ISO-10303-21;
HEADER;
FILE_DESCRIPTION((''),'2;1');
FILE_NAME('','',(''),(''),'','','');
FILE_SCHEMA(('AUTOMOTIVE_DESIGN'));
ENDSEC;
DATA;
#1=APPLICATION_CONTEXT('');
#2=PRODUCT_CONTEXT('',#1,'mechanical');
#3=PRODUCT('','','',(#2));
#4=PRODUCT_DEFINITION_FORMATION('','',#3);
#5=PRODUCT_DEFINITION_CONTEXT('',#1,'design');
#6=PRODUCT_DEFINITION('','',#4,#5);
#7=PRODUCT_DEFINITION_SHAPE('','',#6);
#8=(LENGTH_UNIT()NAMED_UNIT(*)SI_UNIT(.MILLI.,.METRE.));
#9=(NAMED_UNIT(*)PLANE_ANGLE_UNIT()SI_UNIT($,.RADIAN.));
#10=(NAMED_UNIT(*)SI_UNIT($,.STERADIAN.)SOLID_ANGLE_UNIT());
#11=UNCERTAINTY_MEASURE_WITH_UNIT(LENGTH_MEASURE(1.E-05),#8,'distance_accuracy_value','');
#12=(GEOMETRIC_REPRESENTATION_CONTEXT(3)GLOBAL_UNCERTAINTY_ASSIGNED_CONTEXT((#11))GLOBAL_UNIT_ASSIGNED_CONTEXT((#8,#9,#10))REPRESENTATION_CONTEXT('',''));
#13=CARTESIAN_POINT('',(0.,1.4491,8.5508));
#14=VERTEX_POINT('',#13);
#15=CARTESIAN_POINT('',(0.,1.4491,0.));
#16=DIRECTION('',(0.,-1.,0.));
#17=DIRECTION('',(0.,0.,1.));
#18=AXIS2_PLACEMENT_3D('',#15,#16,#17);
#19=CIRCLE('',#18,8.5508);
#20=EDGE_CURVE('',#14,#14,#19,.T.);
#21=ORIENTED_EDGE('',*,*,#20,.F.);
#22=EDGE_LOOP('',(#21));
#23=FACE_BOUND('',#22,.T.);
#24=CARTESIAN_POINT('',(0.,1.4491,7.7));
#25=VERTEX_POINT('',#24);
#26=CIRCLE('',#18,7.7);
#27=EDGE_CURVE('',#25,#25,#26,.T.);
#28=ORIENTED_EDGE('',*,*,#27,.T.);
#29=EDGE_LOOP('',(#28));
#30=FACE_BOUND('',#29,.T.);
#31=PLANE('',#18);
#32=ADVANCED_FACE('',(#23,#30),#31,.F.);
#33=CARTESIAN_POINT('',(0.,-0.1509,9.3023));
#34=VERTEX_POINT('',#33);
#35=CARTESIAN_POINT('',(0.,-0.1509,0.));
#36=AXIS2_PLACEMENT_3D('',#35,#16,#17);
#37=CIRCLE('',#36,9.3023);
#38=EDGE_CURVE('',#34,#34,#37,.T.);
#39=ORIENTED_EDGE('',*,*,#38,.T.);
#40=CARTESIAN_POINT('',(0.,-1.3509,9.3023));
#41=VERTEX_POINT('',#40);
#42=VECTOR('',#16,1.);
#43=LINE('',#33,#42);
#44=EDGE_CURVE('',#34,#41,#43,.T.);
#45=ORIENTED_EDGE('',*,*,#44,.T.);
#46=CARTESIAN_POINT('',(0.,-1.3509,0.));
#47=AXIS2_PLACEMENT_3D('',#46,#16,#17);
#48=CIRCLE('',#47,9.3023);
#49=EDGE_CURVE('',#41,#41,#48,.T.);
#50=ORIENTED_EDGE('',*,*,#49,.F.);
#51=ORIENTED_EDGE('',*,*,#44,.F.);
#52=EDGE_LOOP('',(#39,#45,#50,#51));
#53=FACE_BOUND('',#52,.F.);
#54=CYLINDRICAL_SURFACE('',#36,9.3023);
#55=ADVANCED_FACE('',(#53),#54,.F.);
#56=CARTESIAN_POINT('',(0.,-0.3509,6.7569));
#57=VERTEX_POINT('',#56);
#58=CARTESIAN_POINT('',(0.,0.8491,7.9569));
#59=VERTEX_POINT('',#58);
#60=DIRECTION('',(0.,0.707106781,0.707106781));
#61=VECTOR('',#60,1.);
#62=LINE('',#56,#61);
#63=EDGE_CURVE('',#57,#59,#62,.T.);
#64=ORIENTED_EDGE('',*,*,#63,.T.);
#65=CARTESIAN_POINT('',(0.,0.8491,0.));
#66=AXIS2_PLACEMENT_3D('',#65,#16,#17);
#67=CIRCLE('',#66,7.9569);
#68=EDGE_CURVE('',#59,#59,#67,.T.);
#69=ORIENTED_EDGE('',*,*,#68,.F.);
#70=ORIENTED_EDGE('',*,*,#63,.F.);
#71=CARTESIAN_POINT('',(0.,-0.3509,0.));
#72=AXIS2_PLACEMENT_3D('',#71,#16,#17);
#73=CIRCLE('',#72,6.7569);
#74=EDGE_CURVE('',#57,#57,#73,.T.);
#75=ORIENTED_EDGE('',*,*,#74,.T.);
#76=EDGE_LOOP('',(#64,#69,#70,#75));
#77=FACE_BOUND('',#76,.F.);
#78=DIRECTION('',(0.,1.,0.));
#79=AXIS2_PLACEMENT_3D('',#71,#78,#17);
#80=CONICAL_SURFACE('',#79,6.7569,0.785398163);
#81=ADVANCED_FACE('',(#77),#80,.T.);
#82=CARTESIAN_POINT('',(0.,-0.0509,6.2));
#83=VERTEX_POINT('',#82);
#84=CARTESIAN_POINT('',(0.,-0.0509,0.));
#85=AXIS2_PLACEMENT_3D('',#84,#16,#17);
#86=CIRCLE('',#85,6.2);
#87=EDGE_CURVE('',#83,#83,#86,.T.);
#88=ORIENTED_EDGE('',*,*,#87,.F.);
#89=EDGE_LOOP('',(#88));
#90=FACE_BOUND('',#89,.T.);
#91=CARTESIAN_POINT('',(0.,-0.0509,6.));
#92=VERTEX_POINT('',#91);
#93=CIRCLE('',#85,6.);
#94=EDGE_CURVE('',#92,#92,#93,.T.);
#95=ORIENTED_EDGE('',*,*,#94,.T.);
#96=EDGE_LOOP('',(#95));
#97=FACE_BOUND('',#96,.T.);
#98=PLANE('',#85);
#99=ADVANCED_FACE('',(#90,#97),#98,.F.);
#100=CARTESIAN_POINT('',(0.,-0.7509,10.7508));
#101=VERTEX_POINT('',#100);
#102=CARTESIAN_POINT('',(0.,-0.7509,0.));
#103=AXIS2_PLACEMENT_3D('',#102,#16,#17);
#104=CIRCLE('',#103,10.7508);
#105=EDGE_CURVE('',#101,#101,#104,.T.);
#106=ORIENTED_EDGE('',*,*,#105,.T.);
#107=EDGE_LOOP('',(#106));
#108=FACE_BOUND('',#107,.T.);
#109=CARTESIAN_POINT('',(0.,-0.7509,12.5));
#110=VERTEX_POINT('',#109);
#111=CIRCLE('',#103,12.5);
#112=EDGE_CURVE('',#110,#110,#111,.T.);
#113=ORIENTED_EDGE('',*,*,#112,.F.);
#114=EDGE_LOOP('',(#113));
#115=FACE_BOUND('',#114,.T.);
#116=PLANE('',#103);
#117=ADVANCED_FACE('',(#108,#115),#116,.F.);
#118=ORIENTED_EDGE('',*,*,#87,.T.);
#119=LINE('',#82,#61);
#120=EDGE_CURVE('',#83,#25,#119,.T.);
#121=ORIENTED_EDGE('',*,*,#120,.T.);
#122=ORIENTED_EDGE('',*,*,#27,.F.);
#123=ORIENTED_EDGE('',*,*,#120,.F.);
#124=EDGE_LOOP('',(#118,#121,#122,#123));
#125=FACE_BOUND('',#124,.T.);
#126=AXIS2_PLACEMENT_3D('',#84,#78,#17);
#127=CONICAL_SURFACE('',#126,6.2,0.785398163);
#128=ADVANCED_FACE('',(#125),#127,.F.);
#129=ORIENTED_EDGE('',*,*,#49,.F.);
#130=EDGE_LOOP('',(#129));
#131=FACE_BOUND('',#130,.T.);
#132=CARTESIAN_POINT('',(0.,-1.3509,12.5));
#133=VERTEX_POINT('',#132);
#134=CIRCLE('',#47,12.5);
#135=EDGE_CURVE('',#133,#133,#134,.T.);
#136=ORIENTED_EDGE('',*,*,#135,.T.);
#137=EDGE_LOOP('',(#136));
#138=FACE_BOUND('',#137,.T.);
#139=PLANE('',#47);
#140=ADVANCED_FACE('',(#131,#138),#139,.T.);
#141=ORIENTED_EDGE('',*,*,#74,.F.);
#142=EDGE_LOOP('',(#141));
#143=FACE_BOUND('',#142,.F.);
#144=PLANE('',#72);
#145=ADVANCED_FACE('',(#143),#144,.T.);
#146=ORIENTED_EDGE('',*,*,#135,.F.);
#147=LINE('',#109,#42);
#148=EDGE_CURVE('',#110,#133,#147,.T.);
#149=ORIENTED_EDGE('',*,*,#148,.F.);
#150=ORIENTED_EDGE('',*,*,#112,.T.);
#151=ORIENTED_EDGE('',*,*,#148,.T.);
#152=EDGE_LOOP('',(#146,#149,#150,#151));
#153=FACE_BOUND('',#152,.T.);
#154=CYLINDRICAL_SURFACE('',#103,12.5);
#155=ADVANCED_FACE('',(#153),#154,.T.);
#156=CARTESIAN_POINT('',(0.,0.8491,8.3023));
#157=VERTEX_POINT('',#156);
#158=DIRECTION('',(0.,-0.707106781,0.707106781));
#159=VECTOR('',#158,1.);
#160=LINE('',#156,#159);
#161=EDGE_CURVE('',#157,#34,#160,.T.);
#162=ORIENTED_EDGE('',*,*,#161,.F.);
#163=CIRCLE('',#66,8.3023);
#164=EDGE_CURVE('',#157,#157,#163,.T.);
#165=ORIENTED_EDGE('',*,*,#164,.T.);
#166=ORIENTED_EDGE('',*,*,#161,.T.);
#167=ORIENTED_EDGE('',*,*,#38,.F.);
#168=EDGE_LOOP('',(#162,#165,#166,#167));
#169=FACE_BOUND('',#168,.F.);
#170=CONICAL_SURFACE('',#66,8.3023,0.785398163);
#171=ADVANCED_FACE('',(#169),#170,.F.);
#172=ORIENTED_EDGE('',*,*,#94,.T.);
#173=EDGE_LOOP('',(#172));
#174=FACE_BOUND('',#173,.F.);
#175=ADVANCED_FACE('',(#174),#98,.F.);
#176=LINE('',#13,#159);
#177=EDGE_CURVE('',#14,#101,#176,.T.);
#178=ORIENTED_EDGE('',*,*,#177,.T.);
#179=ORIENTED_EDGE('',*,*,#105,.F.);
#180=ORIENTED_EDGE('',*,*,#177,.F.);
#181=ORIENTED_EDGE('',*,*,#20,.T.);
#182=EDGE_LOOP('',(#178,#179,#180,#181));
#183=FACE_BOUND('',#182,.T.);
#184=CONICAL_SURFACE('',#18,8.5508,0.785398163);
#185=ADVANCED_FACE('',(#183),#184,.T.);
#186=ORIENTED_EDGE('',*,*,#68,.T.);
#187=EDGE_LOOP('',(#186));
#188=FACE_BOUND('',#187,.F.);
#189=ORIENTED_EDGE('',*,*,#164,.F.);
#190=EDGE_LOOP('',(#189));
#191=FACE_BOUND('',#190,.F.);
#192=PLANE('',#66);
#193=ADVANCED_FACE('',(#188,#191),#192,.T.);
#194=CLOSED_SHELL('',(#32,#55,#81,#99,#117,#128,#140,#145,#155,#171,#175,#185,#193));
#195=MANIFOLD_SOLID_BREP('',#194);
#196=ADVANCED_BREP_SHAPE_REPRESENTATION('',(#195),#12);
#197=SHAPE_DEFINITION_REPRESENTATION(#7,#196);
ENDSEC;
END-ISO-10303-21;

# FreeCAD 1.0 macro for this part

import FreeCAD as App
import Part
import Sketcher
Q = App.Units.Quantity

doc = App.newDocument("Part")
body = doc.addObject("PartDesign::Body", "Body")

# Sketch on YZ plane
sketch1 = body.newObject("Sketcher::SketchObject", "Sketch")
sketch1.AttachmentSupport = (doc.getObject("YZ_Plane"), [""])
sketch1.MapMode = "FlatFace"
sketch1.addGeometry(Part.LineSegment(App.Vector(-0.05, 0, 0), App.Vector(-0.05, 6.2, 0)), False)
sketch1.addGeometry(Part.LineSegment(App.Vector(-0.05, 6.2, 0), App.Vector(1.45, 7.7, 0)), False)
sketch1.addGeometry(Part.LineSegment(App.Vector(1.45, 7.7, 0), App.Vector(1.45, 8.55, 0)), False)
sketch1.addGeometry(Part.LineSegment(App.Vector(1.45, 8.55, 0), App.Vector(-0.75, 10.75, 0)), False)
sketch1.addGeometry(Part.LineSegment(App.Vector(-0.75, 10.75, 0), App.Vector(-0.75, 12.5, 0)), False)
sketch1.addGeometry(Part.LineSegment(App.Vector(-0.75, 12.5, 0), App.Vector(-1.35, 12.5, 0)), False)
sketch1.addGeometry(Part.LineSegment(App.Vector(-1.35, 12.5, 0), App.Vector(-1.35, 9.3, 0)), False)
sketch1.addGeometry(Part.LineSegment(App.Vector(-1.35, 9.3, 0), App.Vector(-0.15, 9.3, 0)), False)
sketch1.addGeometry(Part.LineSegment(App.Vector(-0.15, 9.3, 0), App.Vector(0.85, 8.3, 0)), False)
sketch1.addGeometry(Part.LineSegment(App.Vector(0.85, 8.3, 0), App.Vector(0.85, 7.96, 0)), False)
sketch1.addGeometry(Part.LineSegment(App.Vector(0.85, 7.96, 0), App.Vector(-0.35, 6.76, 0)), False)
sketch1.addGeometry(Part.LineSegment(App.Vector(-0.35, 6.76, 0), App.Vector(-0.35, 0, 0)), False)
sketch1.addGeometry(Part.LineSegment(App.Vector(-0.35, 0, 0), App.Vector(-0.05, 0, 0)), False)
sketch1.addConstraint(Sketcher.Constraint("Coincident", 0, 2, 1, 1))
sketch1.addConstraint(Sketcher.Constraint("Coincident", 1, 2, 2, 1))
sketch1.addConstraint(Sketcher.Constraint("Coincident", 2, 2, 3, 1))
sketch1.addConstraint(Sketcher.Constraint("Coincident", 3, 2, 4, 1))
sketch1.addConstraint(Sketcher.Constraint("Coincident", 4, 2, 5, 1))
sketch1.addConstraint(Sketcher.Constraint("Coincident", 5, 2, 6, 1))
sketch1.addConstraint(Sketcher.Constraint("Coincident", 6, 2, 7, 1))
sketch1.addConstraint(Sketcher.Constraint("Coincident", 7, 2, 8, 1))
sketch1.addConstraint(Sketcher.Constraint("Coincident", 8, 2, 9, 1))
sketch1.addConstraint(Sketcher.Constraint("Coincident", 9, 2, 10, 1))
sketch1.addConstraint(Sketcher.Constraint("Coincident", 10, 2, 11, 1))
sketch1.addConstraint(Sketcher.Constraint("Coincident", 11, 2, 12, 1))
sketch1.addConstraint(Sketcher.Constraint("Coincident", 12, 2, 0, 1))
sketch1.addConstraint(Sketcher.Constraint("Vertical", 0))
sketch1.addConstraint(Sketcher.Constraint("Vertical", 2))
sketch1.addConstraint(Sketcher.Constraint("Vertical", 4))
sketch1.addConstraint(Sketcher.Constraint("Horizontal", 5))
sketch1.addConstraint(Sketcher.Constraint("Vertical", 6))
sketch1.addConstraint(Sketcher.Constraint("Horizontal", 7))
sketch1.addConstraint(Sketcher.Constraint("Vertical", 9))
sketch1.addConstraint(Sketcher.Constraint("Vertical", 11))
sketch1.addConstraint(Sketcher.Constraint("Horizontal", 12))
sketch1.addConstraint(Sketcher.Constraint("PointOnObject", 11, 2, -1))
sketch1.addConstraint(Sketcher.Constraint("Perpendicular", 1, 3))
sketch1.addConstraint(Sketcher.Constraint("Parallel", 3, 8))
sketch1.addConstraint(Sketcher.Constraint("Perpendicular", 8, 10))
sketch1.addConstraint(Sketcher.Constraint("Angle", 3, Q("135 deg")))
sketch1.addConstraint(Sketcher.Constraint("DistanceX", 5, 2, 5, 1, Q("0.6 mm")))
sketch1.addConstraint(Sketcher.Constraint("DistanceX", 7, 1, 7, 2, Q("1.2 mm")))
sketch1.addConstraint(Sketcher.Constraint("DistanceX", 12, 1, 12, 2, Q("0.3 mm")))
sketch1.addConstraint(Sketcher.Constraint("DistanceX", 7, 2, 8, 2, Q("1 mm")))
sketch1.addConstraint(Sketcher.Constraint("DistanceY", -1, 1, 4, 2, Q("12.5 mm")))
sketch1.addConstraint(Sketcher.Constraint("DistanceX", 8, 2, 2, 2, Q("0.6 mm")))
sketch1.addConstraint(Sketcher.Constraint("DistanceX", 10, 2, 9, 2, Q("1.2 mm")))
sketch1.addConstraint(Sketcher.Constraint("DistanceY", 0, 1, 0, 2, Q("6.2 mm")))
sketch1.addConstraint(Sketcher.Constraint("DistanceY", 11, 2, 11, 1, Q("6.757 mm")))
sketch1.addConstraint(Sketcher.Constraint("DistanceY", 2, 1, 2, 2, Q("0.8508 mm")))
sketch1.addConstraint(Sketcher.Constraint("DistanceY", 6, 2, 6, 1, Q("3.1977 mm")))
sketch1.addConstraint(Sketcher.Constraint("DistanceX", 0, 2, -1, 1, Q("0.051 mm")))
revolution = body.newObject("PartDesign::Revolution", "Revolution")
revolution.Profile = sketch1
revolution.ReferenceAxis = (sketch1, ["H_Axis"])
revolution.Angle = 360

doc.recompute()
